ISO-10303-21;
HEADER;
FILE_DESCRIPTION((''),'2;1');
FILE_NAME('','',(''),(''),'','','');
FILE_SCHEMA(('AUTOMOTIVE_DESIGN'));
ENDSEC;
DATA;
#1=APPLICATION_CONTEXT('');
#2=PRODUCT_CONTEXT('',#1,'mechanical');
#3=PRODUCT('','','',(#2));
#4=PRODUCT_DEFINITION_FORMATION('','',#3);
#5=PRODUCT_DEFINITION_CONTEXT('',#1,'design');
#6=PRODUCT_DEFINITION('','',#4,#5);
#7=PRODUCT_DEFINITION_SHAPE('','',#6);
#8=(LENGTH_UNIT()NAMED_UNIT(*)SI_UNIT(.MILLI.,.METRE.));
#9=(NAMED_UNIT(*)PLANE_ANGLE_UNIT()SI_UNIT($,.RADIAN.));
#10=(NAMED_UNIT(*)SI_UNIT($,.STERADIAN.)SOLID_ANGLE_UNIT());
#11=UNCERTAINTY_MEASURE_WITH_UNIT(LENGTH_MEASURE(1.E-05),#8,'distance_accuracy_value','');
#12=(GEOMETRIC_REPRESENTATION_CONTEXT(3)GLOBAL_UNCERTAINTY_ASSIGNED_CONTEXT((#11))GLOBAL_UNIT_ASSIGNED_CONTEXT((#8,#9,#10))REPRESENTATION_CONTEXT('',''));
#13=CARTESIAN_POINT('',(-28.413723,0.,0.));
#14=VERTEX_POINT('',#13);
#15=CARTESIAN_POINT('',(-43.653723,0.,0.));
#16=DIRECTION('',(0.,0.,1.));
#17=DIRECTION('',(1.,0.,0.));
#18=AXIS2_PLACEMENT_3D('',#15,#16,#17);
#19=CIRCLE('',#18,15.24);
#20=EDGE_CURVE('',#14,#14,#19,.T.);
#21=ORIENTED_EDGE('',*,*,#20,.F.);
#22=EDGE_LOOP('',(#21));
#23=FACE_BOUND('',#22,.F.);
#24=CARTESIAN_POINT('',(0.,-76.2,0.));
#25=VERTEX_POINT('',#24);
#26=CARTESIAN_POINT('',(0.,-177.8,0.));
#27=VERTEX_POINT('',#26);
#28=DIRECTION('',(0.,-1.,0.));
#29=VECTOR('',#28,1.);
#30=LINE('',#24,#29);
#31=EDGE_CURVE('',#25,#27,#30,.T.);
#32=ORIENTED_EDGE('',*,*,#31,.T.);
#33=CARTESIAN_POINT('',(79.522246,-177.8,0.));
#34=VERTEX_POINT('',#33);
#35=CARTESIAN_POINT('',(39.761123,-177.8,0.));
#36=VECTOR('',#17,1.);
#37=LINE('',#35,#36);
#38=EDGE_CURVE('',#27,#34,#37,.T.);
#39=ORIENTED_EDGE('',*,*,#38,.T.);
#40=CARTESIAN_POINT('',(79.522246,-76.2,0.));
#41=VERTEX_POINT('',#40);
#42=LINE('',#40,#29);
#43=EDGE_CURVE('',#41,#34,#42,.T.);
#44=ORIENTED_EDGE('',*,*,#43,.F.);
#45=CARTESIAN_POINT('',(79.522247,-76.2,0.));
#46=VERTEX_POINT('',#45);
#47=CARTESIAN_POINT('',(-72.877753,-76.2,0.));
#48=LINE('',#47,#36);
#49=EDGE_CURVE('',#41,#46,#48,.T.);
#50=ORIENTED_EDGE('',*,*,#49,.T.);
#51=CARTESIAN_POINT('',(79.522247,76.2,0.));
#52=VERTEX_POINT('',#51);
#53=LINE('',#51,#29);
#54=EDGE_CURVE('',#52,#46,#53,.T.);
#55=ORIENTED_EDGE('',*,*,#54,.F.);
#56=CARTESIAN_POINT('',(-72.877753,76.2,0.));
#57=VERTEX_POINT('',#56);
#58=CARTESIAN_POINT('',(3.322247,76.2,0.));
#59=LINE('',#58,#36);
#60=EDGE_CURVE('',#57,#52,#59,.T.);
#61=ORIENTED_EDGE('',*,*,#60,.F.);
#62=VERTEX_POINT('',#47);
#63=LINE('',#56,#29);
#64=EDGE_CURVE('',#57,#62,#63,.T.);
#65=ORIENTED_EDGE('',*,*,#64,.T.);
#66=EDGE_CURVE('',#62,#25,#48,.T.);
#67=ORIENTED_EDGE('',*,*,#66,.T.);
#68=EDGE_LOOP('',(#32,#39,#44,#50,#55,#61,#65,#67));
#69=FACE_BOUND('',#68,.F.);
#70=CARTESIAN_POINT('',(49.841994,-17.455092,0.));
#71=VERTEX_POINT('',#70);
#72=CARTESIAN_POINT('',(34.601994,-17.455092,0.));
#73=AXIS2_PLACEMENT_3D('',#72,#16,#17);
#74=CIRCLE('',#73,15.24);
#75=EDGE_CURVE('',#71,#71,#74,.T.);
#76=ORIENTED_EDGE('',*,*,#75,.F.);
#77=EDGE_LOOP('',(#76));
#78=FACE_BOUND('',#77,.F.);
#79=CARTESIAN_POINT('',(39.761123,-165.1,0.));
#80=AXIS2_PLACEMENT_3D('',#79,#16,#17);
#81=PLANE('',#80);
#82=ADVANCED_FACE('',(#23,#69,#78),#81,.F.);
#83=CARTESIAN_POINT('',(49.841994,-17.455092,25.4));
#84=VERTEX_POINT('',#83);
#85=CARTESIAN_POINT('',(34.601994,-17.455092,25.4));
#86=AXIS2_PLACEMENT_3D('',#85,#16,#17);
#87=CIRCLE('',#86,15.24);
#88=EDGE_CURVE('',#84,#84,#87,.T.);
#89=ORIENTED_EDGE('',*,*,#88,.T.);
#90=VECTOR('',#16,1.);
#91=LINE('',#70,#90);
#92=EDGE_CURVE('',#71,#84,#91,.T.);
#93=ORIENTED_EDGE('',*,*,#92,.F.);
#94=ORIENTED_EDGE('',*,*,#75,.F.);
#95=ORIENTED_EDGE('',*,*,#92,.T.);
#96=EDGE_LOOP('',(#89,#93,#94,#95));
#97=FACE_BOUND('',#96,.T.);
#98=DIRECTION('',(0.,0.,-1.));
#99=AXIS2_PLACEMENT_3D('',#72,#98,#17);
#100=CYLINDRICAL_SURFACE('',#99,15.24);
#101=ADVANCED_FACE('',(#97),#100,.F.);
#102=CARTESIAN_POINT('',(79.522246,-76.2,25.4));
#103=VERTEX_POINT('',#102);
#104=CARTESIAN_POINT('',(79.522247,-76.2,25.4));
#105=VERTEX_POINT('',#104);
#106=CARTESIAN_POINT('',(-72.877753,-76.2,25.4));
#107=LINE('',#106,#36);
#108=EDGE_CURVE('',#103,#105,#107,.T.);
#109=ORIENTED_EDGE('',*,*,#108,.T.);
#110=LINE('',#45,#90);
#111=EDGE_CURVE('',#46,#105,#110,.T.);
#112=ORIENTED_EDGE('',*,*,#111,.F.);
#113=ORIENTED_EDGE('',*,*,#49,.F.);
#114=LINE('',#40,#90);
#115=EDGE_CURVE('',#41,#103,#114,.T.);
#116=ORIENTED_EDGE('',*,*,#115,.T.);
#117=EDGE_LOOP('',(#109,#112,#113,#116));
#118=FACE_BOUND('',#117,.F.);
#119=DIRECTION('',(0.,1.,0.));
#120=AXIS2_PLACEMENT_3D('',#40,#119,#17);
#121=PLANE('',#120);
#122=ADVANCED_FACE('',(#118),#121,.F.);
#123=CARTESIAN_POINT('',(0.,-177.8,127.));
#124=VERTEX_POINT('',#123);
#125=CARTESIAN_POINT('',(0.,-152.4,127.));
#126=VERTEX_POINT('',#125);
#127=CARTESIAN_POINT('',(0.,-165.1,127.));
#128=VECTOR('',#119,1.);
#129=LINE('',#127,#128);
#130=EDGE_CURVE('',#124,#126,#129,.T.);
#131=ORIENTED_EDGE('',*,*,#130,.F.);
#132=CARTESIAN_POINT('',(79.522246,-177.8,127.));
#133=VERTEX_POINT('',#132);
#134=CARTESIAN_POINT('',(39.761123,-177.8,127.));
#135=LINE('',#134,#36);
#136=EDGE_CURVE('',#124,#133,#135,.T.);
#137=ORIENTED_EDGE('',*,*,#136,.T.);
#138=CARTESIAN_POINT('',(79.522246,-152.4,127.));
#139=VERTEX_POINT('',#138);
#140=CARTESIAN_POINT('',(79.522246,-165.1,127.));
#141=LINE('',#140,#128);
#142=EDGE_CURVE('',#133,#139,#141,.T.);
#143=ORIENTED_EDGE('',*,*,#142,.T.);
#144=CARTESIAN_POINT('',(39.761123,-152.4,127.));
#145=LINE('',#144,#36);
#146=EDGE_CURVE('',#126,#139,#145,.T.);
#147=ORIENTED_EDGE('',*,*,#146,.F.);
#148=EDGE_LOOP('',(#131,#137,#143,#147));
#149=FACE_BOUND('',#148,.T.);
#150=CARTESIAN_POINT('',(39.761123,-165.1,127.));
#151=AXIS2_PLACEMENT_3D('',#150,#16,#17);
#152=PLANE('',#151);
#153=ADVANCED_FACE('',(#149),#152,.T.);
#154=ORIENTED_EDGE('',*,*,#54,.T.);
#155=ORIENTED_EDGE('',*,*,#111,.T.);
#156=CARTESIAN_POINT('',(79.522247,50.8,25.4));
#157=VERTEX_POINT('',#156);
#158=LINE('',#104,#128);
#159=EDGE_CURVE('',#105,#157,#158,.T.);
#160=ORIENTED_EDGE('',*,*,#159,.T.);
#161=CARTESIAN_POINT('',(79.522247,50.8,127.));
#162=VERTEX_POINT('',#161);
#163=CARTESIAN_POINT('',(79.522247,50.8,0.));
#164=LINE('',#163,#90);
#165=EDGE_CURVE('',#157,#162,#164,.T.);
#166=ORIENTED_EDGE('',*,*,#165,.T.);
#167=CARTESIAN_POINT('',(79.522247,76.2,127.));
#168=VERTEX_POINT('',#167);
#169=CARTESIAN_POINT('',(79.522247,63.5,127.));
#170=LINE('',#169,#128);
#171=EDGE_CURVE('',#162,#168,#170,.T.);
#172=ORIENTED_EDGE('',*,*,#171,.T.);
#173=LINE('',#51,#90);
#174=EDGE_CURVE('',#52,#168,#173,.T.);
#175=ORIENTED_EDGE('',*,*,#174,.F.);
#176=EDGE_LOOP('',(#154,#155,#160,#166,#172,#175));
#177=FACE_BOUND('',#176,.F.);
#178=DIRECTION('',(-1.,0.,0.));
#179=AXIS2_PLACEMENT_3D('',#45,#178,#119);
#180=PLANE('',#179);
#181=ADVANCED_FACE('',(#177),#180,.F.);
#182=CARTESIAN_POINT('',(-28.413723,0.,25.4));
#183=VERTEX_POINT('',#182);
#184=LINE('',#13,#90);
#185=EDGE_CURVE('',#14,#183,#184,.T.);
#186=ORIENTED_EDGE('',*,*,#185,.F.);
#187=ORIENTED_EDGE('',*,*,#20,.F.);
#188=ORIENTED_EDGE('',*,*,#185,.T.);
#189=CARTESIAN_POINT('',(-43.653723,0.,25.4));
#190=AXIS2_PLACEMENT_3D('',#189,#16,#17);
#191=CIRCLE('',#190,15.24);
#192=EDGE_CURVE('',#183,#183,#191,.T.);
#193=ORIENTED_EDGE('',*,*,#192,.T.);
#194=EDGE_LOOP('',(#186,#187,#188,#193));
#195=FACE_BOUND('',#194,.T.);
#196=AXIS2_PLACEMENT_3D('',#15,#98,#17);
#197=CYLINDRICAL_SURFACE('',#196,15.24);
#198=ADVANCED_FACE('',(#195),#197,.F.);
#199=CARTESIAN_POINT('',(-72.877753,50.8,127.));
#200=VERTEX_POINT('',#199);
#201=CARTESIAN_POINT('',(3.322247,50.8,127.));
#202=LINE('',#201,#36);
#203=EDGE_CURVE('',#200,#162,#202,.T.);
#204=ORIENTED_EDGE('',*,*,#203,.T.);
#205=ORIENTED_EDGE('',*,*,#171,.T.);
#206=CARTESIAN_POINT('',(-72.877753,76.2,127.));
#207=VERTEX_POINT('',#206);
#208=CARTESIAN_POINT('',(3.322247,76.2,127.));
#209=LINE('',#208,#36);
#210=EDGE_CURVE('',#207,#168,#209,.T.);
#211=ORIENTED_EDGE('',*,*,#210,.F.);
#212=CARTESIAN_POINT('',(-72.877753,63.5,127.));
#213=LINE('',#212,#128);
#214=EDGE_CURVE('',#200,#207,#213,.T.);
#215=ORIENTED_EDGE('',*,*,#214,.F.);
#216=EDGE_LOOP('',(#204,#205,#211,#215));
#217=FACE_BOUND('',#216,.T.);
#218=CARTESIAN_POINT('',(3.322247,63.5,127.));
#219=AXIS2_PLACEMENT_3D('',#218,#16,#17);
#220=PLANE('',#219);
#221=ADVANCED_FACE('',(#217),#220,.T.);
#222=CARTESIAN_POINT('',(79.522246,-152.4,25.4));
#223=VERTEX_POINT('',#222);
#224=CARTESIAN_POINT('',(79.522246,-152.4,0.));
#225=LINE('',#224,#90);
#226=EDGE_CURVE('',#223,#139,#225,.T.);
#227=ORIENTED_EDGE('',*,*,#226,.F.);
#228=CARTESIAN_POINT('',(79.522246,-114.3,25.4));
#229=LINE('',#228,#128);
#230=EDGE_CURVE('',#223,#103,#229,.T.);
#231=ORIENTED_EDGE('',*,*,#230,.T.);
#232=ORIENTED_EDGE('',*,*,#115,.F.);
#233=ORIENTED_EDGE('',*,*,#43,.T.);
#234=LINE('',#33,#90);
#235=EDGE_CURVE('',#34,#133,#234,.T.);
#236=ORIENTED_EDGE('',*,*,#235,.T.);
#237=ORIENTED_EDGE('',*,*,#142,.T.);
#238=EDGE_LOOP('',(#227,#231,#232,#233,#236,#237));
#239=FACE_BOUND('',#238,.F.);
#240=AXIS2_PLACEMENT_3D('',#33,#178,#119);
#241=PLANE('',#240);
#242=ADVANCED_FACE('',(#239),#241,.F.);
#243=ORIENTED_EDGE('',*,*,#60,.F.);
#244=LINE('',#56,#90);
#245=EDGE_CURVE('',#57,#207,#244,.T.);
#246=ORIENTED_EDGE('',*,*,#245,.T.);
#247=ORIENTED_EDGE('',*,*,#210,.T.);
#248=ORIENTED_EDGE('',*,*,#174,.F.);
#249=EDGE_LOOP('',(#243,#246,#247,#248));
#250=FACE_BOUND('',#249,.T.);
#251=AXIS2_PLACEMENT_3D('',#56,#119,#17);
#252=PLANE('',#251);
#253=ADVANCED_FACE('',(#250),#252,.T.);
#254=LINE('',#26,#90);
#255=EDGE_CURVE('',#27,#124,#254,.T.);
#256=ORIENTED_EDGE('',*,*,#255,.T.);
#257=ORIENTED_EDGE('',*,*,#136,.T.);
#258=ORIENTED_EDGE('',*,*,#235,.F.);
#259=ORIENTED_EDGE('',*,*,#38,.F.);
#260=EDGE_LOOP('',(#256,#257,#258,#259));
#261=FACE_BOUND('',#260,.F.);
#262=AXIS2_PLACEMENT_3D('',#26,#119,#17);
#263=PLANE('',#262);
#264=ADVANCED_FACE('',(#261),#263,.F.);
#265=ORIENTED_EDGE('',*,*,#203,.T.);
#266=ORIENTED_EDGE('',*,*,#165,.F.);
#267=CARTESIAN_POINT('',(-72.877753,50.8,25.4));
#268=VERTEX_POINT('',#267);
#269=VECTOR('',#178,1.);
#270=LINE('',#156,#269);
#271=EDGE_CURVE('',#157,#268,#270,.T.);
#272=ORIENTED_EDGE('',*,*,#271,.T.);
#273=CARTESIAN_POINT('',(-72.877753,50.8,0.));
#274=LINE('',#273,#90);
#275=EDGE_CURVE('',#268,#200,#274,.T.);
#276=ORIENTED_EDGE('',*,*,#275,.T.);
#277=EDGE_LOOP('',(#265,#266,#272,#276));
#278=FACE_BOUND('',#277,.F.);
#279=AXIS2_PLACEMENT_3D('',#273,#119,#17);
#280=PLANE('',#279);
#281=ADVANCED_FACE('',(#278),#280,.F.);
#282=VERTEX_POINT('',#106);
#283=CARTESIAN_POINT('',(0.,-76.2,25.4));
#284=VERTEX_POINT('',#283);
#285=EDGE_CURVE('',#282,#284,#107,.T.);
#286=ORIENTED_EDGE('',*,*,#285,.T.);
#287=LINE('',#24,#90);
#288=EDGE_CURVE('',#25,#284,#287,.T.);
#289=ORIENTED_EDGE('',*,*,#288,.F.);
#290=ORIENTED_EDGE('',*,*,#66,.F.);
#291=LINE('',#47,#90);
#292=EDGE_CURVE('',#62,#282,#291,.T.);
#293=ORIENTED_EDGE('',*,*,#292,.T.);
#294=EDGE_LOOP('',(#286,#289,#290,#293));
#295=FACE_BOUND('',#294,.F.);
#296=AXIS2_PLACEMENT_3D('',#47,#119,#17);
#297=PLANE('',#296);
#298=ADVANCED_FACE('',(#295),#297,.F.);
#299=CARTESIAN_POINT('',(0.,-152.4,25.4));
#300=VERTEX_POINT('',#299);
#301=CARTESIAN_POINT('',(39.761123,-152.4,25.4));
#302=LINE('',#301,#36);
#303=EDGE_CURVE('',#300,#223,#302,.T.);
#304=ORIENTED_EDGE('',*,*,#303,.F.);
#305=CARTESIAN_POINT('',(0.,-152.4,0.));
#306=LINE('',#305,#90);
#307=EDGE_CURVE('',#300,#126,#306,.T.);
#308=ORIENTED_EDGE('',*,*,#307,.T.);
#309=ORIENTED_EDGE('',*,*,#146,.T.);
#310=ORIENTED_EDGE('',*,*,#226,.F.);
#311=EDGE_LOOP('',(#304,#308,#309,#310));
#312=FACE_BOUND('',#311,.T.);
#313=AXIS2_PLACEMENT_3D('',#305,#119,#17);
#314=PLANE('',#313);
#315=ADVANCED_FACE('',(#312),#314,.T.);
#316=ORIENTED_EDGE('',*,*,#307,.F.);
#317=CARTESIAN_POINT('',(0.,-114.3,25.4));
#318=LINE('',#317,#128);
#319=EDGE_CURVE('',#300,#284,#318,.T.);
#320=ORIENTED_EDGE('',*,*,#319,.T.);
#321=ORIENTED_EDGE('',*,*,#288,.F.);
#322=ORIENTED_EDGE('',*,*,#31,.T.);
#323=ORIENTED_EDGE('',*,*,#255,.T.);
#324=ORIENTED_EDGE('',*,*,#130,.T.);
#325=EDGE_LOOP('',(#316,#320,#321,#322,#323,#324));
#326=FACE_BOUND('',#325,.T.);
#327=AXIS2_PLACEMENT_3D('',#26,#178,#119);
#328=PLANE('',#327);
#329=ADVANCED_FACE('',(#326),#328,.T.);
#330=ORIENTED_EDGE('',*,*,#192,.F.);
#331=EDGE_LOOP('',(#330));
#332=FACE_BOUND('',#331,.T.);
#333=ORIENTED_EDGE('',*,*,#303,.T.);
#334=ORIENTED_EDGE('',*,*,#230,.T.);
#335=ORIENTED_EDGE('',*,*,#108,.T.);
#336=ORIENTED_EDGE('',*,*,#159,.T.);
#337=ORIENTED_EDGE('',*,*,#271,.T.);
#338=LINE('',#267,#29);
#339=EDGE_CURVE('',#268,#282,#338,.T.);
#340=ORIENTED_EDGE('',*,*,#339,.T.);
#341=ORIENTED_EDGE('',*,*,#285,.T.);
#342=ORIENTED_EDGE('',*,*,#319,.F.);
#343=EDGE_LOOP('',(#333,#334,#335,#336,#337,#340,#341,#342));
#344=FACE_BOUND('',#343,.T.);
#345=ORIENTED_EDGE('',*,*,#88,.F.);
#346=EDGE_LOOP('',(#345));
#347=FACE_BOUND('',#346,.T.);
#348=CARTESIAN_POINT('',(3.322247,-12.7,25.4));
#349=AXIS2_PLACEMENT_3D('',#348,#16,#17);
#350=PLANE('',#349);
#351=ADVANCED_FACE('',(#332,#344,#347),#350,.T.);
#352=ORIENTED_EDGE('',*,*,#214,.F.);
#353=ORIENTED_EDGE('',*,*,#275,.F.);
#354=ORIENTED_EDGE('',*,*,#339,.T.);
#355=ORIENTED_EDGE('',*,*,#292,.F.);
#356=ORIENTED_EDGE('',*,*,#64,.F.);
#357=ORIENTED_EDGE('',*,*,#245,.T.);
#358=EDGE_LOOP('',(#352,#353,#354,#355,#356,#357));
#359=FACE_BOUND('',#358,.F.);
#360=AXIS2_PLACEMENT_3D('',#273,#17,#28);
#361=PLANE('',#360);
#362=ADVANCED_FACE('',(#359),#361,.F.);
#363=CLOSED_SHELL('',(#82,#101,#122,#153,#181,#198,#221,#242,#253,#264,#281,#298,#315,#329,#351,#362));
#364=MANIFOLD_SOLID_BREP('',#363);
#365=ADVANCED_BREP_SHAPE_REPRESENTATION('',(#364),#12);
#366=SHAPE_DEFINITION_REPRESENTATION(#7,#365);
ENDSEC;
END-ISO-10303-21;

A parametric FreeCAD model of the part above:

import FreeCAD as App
import Part
import Sketcher
from FreeCAD import Vector
Q = App.Units.Quantity

doc = App.newDocument("Part")
body = doc.addObject("PartDesign::Body", "Body")

sketch1 = body.newObject("Sketcher::SketchObject", "Sketch")
sketch1.AttachmentSupport = (doc.getObject("XY_Plane"), [""])
sketch1.MapMode = "FlatFace"
sketch1.addGeometry([
    Part.LineSegment(Vector(-73, 76, 0), Vector(-73, 51, 0)),
    Part.LineSegment(Vector(-73, 51, 0), Vector(80, 51, 0)),
    Part.LineSegment(Vector(80, 51, 0), Vector(80, 76, 0)),
    Part.LineSegment(Vector(80, 76, 0), Vector(-73, 76, 0)),
], False)
sketch1.addConstraint([
    Sketcher.Constraint("Coincident", 0, 2, 1, 1),
    Sketcher.Constraint("Coincident", 1, 2, 2, 1),
    Sketcher.Constraint("Coincident", 2, 2, 3, 1),
    Sketcher.Constraint("Coincident", 3, 2, 0, 1),
    Sketcher.Constraint("Vertical", 0),
    Sketcher.Constraint("Horizontal", 1),
    Sketcher.Constraint("Vertical", 2),
    Sketcher.Constraint("Horizontal", 3),
    Sketcher.Constraint("DistanceX", 1, 1, 1, 2, Q("6 in")),
    Sketcher.Constraint("DistanceY", 0, 2, 0, 1, Q("1 in")),
    Sketcher.Constraint("DistanceY", -1, 1, 0, 2, Q("2 in")),
    Sketcher.Constraint("DistanceX", 0, 2, -1, 1, 72.877753),
])
pad1 = body.newObject("PartDesign::Pad", "Pad")
pad1.Profile = sketch1
pad1.Length = Q("5 in")

sketch2 = body.newObject("Sketcher::SketchObject", "Sketch001")
sketch2.AttachmentSupport = (doc.getObject("XY_Plane"), [""])
sketch2.MapMode = "FlatFace"
sketch2.addGeometry([
    Part.LineSegment(Vector(79.522247, 50.8, 0), Vector(-72.877753, 50.8, 0)),
    Part.LineSegment(Vector(-72.877753, 50.8, 0), Vector(-72.877753, -76.2, 0)),
    Part.LineSegment(Vector(-72.877753, -76.2, 0), Vector(0, -76.2, 0)),
    Part.LineSegment(Vector(0, -76.2, 0), Vector(0, -152.4, 0)),
    Part.LineSegment(Vector(0, -152.4, 0), Vector(79.522246, -152.4, 0)),
    Part.LineSegment(Vector(79.522246, -152.4, 0), Vector(79.522246, -76.2, 0)),
    Part.LineSegment(Vector(79.522247, -76.2, 0), Vector(79.522246, -76.2, 0)),
    Part.LineSegment(Vector(79.522247, -76.2, 0), Vector(79.522247, 50.8, 0)),
    Part.Circle(Vector(34.601994, -17.455092, 0), Vector(0, 0, 1), 15.24),
    Part.Circle(Vector(-43.653723, 0, 0), Vector(0, 0, 1), 15.24),
], False)
sketch2.addConstraint([
    Sketcher.Constraint("Coincident", 0, 2, 1, 1),
    Sketcher.Constraint("Coincident", 1, 2, 2, 1),
    Sketcher.Constraint("Coincident", 2, 2, 3, 1),
    Sketcher.Constraint("Coincident", 3, 2, 4, 1),
    Sketcher.Constraint("Coincident", 4, 2, 5, 1),
    Sketcher.Constraint("Coincident", 5, 2, 6, 1),
    Sketcher.Constraint("Coincident", 6, 2, 7, 1),
    Sketcher.Constraint("Coincident", 7, 2, 0, 1),
    Sketcher.Constraint("Horizontal", 0),
    Sketcher.Constraint("Vertical", 1),
    Sketcher.Constraint("Horizontal", 2),
    Sketcher.Constraint("Vertical", 3),
    Sketcher.Constraint("Horizontal", 4),
    Sketcher.Constraint("Vertical", 5),
    Sketcher.Constraint("Horizontal", 6),
    Sketcher.Constraint("Vertical", 7),
    Sketcher.Constraint("PointOnObject", 9, 3, -1),
    Sketcher.Constraint("PointOnObject", 2, 2, -2),
    Sketcher.Constraint("Diameter", 8, Q("1.2 in")),
    Sketcher.Constraint("Diameter", 9, Q("1.2 in")),
    Sketcher.Constraint("DistanceX", 0, 2, 0, 1, Q("6 in")),
    Sketcher.Constraint("DistanceY", 1, 2, 1, 1, Q("5 in")),
    Sketcher.Constraint("DistanceY", 3, 2, 3, 1, Q("3 in")),
    Sketcher.Constraint("DistanceY", 5, 1, 5, 2, Q("3 in")),
    Sketcher.Constraint("DistanceY", -1, 1, 0, 2, Q("2 in")),
    Sketcher.Constraint("DistanceX", 1, 2, 4, 2, Q("6 in")),
    Sketcher.Constraint("DistanceX", 2, 1, 2, 2, 72.877752),
    Sketcher.Constraint("DistanceX", 0, 2, 9, 3, 29.22403),
    Sketcher.Constraint("DistanceY", 8, 3, 0, 2, 68.255092),
    Sketcher.Constraint("DistanceX", -1, 1, 8, 3, 34.601994),
])
pad2 = body.newObject("PartDesign::Pad", "Pad001")
pad2.Profile = sketch2
pad2.Length = Q("1 in")

sketch3 = body.newObject("Sketcher::SketchObject", "Sketch002")
sketch3.AttachmentSupport = (doc.getObject("XY_Plane"), [""])
sketch3.MapMode = "FlatFace"
sketch3.addGeometry([
    Part.LineSegment(Vector(0, -152, 0), Vector(0, -178, 0)),
    Part.LineSegment(Vector(0, -178, 0), Vector(80, -178, 0)),
    Part.LineSegment(Vector(80, -178, 0), Vector(80, -152, 0)),
    Part.LineSegment(Vector(80, -152, 0), Vector(0, -152, 0)),
], False)
sketch3.addConstraint([
    Sketcher.Constraint("Coincident", 0, 2, 1, 1),
    Sketcher.Constraint("Coincident", 1, 2, 2, 1),
    Sketcher.Constraint("Coincident", 2, 2, 3, 1),
    Sketcher.Constraint("Coincident", 3, 2, 0, 1),
    Sketcher.Constraint("Vertical", 0),
    Sketcher.Constraint("Horizontal", 1),
    Sketcher.Constraint("Vertical", 2),
    Sketcher.Constraint("Horizontal", 3),
    Sketcher.Constraint("PointOnObject", 0, 2, -2),
    Sketcher.Constraint("DistanceY", 0, 2, 0, 1, Q("1 in")),
    Sketcher.Constraint("DistanceY", 0, 2, -1, 1, Q("7 in")),
    Sketcher.Constraint("DistanceX", 1, 1, 1, 2, 79.522247),
])
pad3 = body.newObject("PartDesign::Pad", "Pad002")
pad3.Profile = sketch3
pad3.Length = Q("5 in")

doc.recompute()
